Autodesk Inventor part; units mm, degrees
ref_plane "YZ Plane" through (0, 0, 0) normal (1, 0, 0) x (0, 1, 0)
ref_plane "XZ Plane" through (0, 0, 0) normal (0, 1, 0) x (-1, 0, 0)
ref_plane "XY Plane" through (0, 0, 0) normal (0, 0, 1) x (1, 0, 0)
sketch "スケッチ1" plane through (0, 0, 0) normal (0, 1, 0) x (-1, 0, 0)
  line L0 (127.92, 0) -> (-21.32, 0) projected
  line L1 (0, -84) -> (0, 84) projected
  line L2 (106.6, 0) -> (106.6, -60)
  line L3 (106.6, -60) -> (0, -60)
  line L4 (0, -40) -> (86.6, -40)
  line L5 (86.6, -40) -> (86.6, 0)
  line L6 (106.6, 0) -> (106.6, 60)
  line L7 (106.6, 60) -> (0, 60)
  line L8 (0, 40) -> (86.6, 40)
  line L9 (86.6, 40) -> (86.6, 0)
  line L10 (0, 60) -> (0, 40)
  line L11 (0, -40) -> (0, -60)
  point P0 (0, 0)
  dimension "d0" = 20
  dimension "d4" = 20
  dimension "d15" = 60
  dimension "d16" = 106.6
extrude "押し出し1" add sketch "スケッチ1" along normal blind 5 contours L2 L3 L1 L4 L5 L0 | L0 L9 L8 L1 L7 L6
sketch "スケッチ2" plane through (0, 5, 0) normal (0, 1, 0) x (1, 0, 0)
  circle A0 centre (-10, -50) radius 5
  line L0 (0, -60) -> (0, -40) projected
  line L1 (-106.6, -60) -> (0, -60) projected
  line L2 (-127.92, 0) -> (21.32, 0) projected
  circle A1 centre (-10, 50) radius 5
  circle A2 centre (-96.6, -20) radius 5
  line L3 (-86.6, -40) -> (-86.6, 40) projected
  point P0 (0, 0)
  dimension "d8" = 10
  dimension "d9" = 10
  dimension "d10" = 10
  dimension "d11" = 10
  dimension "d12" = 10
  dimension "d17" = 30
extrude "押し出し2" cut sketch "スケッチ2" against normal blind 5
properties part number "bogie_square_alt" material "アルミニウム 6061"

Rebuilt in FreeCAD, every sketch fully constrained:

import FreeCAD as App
import Part
import Sketcher

doc = App.newDocument("Part")
body = doc.addObject("PartDesign::Body", "Body")

# Sketch on XZ plane
sketch1 = body.newObject("Sketcher::SketchObject", "Sketch")
sketch1.AttachmentSupport = (doc.getObject("XZ_Plane"), [""])
sketch1.MapMode = "FlatFace"
sketch1.addGeometry([
    Part.LineSegment(App.Vector(-107, -60, 0), App.Vector(-107, 60, 0)),  # 0
    Part.LineSegment(App.Vector(-107, 60, 0), App.Vector(0, 60, 0)),  # 1
    Part.LineSegment(App.Vector(0, 60, 0), App.Vector(0, 40, 0)),  # 2
    Part.LineSegment(App.Vector(0, 40, 0), App.Vector(-87, 40, 0)),  # 3
    Part.LineSegment(App.Vector(-87, 40, 0), App.Vector(-87, -40, 0)),  # 4
    Part.LineSegment(App.Vector(-87, -40, 0), App.Vector(0, -40, 0)),  # 5
    Part.LineSegment(App.Vector(0, -40, 0), App.Vector(0, -60, 0)),  # 6
    Part.LineSegment(App.Vector(0, -60, 0), App.Vector(-107, -60, 0)),  # 7
], False)
sketch1.addConstraint([
    Sketcher.Constraint("Coincident", 0, 2, 1, 1),
    Sketcher.Constraint("Coincident", 1, 2, 2, 1),
    Sketcher.Constraint("Coincident", 2, 2, 3, 1),
    Sketcher.Constraint("Coincident", 3, 2, 4, 1),
    Sketcher.Constraint("Coincident", 4, 2, 5, 1),
    Sketcher.Constraint("Coincident", 5, 2, 6, 1),
    Sketcher.Constraint("Coincident", 6, 2, 7, 1),
    Sketcher.Constraint("Coincident", 7, 2, 0, 1),
    Sketcher.Constraint("Vertical", 0),
    Sketcher.Constraint("Horizontal", 1),
    Sketcher.Constraint("Vertical", 2),
    Sketcher.Constraint("Horizontal", 3),
    Sketcher.Constraint("Vertical", 4),
    Sketcher.Constraint("Horizontal", 5),
    Sketcher.Constraint("Vertical", 6),
    Sketcher.Constraint("Horizontal", 7),
    Sketcher.Constraint("Symmetric", 2, 2, 5, 2, -1, 1),
    Sketcher.Constraint("Symmetric", 1, 2, 6, 2, -1),
    Sketcher.Constraint("DistanceY", 2, 2, 2, 1, 20.0),
    Sketcher.Constraint("DistanceX", 1, 1, 1, 2, 106.6),
    Sketcher.Constraint("DistanceY", -1, 1, 0, 2, 60.0),
    Sketcher.Constraint("DistanceX", 0, 2, 3, 2, 20.0),
])
pad1 = body.newObject("PartDesign::Pad", "Pad")
pad1.Profile = sketch1
pad1.Length = 5
pad1.Reversed = True

# Sketch on XZ plane
sketch2 = body.newObject("Sketcher::SketchObject", "Sketch001")
sketch2.AttachmentSupport = (doc.getObject("XZ_Plane"), [""])
sketch2.MapMode = "FlatFace"
sketch2.AttachmentOffset = App.Placement(App.Vector(0, 0, -5), App.Rotation())
sketch2.addGeometry([
    Part.Circle(App.Vector(-10, 50, 0), App.Vector(0, 0, 1), 5),
    Part.Circle(App.Vector(-10, -50, 0), App.Vector(0, 0, 1), 5),
    Part.Circle(App.Vector(-97, 20, 0), App.Vector(0, 0, 1), 5),
], False)
sketch2.addConstraint([
    Sketcher.Constraint("Equal", 0, 1),
    Sketcher.Constraint("Equal", 1, 2),
    Sketcher.Constraint("Symmetric", 0, 3, 1, 3, -1),
    Sketcher.Constraint("Diameter", 0, 10.0),
    Sketcher.Constraint("DistanceX", 0, 3, -1, 1, 10.0),
    Sketcher.Constraint("DistanceY", 2, 3, 0, 3, 30.0),
    Sketcher.Constraint("DistanceY", -1, 1, 0, 3, 50.0),
    Sketcher.Constraint("DistanceX", 2, 3, -1, 1, 96.6),
])
pocket1 = body.newObject("PartDesign::Pocket", "Pocket")
pocket1.Profile = sketch2
pocket1.Length = 5
pocket1.Reversed = True

doc.recompute()
